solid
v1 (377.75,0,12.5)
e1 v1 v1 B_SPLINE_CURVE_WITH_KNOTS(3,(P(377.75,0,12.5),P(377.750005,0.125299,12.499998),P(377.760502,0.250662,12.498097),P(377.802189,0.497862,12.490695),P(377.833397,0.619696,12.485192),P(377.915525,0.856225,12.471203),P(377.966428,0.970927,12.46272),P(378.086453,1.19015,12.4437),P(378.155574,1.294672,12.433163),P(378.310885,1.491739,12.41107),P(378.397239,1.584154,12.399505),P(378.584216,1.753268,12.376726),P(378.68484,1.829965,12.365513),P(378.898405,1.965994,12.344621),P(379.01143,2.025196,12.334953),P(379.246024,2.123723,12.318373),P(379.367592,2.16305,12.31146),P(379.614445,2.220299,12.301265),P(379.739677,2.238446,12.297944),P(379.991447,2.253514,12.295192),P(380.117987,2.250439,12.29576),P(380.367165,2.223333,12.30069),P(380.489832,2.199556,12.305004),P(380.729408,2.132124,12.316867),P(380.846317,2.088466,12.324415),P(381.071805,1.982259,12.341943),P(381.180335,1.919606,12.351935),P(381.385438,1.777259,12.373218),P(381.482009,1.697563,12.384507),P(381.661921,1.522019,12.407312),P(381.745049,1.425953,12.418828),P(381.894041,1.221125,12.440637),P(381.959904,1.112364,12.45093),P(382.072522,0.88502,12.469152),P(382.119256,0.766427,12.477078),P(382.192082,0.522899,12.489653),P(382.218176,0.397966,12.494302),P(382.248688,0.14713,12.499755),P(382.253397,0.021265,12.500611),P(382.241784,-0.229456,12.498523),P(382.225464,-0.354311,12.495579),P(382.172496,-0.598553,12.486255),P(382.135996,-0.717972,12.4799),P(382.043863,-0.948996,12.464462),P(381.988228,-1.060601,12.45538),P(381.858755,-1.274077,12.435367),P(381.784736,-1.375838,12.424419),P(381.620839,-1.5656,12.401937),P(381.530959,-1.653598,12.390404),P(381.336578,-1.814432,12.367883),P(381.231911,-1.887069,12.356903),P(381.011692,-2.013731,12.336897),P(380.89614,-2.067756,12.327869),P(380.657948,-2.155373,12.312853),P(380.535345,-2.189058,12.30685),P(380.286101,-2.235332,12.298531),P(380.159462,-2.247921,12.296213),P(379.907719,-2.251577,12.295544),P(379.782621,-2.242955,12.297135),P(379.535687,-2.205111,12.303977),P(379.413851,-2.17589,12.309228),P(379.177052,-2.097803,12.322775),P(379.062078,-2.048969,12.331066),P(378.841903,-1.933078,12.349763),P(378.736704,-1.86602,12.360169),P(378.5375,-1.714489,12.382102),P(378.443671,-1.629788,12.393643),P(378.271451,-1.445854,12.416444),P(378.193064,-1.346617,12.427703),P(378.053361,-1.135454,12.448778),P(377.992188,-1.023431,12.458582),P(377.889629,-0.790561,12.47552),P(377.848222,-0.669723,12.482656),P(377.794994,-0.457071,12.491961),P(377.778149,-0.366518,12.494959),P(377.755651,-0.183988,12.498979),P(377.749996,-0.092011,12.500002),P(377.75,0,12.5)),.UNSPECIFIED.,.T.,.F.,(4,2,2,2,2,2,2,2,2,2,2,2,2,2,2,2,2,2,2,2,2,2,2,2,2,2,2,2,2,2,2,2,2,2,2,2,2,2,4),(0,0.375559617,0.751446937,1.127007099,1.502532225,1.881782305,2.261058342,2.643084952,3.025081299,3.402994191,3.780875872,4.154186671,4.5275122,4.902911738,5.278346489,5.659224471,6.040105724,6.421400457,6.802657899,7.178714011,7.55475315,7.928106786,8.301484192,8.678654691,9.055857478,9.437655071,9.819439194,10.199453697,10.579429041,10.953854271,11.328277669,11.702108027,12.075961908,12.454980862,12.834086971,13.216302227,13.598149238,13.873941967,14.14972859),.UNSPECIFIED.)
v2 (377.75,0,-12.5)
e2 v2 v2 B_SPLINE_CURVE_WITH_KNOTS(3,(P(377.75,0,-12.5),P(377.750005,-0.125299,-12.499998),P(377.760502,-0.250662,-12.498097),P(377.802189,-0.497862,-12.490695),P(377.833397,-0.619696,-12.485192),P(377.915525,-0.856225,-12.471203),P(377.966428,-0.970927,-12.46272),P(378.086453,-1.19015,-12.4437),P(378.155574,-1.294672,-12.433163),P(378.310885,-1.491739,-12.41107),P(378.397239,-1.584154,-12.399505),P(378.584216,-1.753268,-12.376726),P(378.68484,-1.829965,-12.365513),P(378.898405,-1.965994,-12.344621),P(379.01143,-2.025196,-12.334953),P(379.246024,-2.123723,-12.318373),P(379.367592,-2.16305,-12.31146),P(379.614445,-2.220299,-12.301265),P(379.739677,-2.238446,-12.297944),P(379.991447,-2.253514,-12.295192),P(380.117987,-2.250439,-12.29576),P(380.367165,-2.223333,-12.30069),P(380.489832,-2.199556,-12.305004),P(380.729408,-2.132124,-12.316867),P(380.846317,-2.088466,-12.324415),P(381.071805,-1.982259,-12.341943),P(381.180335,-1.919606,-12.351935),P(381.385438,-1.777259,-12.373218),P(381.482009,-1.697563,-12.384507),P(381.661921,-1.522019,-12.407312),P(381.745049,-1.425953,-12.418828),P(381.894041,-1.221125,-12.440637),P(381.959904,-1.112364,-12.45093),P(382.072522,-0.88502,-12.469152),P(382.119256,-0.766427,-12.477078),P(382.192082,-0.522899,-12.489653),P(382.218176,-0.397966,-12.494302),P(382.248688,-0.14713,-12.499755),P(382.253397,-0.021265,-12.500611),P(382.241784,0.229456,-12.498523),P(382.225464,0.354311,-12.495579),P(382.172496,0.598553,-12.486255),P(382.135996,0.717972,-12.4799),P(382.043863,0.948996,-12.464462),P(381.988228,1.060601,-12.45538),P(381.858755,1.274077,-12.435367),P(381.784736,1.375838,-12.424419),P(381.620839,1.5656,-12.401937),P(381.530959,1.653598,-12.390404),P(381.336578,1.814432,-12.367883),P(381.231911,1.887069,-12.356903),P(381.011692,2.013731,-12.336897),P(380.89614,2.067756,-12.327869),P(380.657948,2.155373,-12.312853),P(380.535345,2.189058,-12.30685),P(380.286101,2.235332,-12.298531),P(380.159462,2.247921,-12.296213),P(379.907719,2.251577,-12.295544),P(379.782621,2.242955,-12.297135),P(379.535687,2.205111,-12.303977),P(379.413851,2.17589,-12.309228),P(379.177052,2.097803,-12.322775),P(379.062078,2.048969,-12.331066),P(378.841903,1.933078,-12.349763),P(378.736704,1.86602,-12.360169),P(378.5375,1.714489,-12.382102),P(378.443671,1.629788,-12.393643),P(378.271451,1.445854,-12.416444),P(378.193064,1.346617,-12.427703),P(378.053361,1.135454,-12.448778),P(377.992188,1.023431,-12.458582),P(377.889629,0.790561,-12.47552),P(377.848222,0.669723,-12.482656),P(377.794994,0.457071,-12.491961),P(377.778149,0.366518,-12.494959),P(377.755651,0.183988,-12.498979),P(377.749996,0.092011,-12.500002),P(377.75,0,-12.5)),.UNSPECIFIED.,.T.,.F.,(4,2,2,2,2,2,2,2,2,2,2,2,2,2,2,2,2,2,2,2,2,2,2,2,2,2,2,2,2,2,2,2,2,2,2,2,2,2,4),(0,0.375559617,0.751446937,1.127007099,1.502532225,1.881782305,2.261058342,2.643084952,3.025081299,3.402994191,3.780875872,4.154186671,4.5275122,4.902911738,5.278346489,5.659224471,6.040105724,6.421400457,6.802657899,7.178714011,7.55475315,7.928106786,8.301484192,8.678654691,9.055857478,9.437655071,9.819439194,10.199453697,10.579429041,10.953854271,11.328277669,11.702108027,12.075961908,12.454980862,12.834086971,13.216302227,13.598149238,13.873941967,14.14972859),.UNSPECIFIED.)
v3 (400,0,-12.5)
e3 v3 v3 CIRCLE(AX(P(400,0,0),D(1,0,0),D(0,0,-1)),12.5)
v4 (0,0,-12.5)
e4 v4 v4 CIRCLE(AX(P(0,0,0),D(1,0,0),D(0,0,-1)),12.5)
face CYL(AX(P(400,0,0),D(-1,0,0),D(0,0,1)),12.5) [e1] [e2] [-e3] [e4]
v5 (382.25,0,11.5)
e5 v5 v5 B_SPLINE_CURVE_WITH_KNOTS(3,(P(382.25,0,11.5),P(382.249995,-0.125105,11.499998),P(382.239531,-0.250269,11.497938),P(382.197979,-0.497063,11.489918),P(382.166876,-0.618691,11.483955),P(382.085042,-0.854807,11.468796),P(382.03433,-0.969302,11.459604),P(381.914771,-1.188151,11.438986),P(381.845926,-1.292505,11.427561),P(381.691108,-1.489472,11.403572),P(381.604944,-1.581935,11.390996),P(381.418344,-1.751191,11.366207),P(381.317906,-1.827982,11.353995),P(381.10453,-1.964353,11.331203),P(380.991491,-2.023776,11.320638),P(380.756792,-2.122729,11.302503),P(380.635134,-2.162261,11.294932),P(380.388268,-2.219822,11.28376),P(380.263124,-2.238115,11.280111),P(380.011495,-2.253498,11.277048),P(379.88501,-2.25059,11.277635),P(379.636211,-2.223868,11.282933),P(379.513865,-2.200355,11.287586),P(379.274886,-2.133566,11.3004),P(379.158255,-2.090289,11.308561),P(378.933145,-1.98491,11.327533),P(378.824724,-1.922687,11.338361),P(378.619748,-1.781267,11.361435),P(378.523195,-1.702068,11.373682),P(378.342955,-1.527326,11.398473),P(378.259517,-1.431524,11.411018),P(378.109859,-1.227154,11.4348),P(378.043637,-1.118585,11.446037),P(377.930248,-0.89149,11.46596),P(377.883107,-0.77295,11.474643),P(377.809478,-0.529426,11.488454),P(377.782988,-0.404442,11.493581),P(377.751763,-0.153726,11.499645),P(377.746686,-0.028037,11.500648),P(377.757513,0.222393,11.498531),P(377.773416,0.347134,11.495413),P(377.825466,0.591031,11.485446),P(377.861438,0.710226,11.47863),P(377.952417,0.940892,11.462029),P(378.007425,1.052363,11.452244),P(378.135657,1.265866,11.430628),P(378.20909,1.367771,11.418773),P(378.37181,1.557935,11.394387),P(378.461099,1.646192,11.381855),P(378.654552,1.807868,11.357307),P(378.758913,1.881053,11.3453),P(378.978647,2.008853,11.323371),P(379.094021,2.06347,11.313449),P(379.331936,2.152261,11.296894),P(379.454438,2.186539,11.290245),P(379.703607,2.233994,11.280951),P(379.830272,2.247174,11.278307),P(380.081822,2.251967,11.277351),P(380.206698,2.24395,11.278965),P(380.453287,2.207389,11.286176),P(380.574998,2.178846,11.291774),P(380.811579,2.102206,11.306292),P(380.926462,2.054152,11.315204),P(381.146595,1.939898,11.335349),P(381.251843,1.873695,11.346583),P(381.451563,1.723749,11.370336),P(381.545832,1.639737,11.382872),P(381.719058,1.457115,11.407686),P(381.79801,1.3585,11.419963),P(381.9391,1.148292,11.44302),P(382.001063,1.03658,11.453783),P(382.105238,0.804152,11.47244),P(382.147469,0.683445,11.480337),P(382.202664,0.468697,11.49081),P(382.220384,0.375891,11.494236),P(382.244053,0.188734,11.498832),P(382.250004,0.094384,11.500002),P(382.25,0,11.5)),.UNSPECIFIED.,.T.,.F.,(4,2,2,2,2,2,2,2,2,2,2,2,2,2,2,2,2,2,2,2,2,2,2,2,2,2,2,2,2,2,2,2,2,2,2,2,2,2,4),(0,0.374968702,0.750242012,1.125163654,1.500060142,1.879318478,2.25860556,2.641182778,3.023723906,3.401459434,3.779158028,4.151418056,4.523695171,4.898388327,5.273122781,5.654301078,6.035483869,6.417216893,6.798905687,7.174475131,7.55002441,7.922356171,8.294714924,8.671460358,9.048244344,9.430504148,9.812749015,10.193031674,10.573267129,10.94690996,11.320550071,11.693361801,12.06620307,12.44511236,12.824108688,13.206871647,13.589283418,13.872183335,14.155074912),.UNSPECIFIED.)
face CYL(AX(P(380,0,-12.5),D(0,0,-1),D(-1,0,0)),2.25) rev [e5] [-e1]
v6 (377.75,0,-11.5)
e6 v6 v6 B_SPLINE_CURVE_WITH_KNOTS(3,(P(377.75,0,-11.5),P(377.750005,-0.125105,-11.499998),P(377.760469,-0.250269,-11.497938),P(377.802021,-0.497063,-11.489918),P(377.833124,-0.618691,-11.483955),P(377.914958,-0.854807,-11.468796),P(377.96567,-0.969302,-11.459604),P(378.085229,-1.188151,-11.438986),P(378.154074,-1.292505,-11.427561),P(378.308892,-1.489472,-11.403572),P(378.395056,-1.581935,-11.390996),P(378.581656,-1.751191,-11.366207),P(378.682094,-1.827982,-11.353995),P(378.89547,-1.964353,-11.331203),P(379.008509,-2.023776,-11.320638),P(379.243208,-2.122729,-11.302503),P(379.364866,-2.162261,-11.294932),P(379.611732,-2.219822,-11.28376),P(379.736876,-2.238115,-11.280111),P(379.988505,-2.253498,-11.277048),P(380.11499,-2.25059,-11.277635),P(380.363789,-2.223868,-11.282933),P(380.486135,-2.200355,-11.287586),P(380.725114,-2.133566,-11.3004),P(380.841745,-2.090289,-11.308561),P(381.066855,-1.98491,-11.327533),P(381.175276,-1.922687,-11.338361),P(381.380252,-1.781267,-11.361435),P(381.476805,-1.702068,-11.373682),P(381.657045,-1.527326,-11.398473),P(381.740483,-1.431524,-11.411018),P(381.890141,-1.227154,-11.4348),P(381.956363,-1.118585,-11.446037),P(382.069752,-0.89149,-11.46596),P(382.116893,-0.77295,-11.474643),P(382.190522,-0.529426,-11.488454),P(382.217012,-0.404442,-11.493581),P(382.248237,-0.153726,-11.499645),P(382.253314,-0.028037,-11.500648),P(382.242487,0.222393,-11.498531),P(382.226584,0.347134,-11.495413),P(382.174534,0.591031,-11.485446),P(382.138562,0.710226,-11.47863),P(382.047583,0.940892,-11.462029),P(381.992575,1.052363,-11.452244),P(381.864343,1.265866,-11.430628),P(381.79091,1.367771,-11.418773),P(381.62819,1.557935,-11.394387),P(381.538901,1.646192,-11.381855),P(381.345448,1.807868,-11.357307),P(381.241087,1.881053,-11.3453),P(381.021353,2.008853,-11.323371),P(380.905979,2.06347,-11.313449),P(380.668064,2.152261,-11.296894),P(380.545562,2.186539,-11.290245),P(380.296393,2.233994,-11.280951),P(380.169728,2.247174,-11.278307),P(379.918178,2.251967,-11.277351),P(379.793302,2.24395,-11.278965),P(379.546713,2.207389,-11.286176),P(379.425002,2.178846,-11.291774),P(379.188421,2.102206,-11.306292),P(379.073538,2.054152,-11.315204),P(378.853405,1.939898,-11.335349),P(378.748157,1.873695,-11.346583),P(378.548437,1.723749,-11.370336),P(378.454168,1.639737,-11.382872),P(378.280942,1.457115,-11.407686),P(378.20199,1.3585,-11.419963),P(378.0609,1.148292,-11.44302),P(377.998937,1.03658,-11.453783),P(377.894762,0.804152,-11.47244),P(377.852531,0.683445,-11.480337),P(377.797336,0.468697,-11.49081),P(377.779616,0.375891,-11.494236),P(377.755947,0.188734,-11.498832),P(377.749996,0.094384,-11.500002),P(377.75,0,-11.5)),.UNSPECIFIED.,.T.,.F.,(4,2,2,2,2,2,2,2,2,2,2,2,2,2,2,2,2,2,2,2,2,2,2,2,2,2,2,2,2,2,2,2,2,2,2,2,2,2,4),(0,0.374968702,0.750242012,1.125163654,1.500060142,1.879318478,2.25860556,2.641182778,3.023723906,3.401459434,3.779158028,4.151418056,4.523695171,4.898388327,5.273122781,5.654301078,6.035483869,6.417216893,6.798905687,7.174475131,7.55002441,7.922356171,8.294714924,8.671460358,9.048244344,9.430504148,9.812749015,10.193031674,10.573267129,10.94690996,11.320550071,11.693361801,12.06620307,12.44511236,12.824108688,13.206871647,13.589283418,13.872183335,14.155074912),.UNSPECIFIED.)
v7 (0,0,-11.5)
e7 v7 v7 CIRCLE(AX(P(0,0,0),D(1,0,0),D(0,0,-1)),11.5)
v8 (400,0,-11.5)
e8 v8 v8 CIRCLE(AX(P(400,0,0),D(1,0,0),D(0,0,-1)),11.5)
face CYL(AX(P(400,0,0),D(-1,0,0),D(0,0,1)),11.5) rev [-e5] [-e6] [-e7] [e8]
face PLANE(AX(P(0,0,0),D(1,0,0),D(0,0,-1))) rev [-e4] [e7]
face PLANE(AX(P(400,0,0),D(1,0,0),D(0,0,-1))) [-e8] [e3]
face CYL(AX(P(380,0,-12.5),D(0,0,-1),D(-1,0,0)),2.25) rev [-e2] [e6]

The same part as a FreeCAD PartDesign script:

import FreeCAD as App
import Part
import Sketcher

V = App.Vector

doc = App.newDocument("Part")
body = doc.addObject("PartDesign::Body", "Body")

# Sketch on YZ plane
sketch1 = doc.addObject("Sketcher::SketchObject", "Sketch")
body.addObject(sketch1)
sketch1.AttachmentSupport = (doc.YZ_Plane, [""])
sketch1.MapMode = "FlatFace"
sketch1.addGeometry([
    Part.Circle(V(0, 0, 0), V(0, 0, 1), 12),
    Part.Circle(V(0, 0, 0), V(0, 0, 1), 12),
], False)
sketch1.addConstraint([
    Sketcher.Constraint("Coincident", 0, 3, -1, 1),
    Sketcher.Constraint("Coincident", 1, 3, -1, 1),
    Sketcher.Constraint("Diameter", 0, 25.0),
    Sketcher.Constraint("Diameter", 1, 23.0),
])
pad1 = doc.addObject("PartDesign::Pad", "Pad")
body.addObject(pad1)
pad1.Profile = sketch1
pad1.Length = 400

# Sketch on XY plane
sketch2 = doc.addObject("Sketcher::SketchObject", "Sketch001")
body.addObject(sketch2)
sketch2.AttachmentSupport = (doc.XY_Plane, [""])
sketch2.MapMode = "FlatFace"
sketch2.AttachmentOffset = App.Placement(V(0, 0, -12.5), App.Rotation())
sketch2.addGeometry(Part.Circle(V(380, 0, 0), V(0, 0, 1), 2.2), False)
sketch2.addConstraint([
    Sketcher.Constraint("PointOnObject", 0, 3, -1),
    Sketcher.Constraint("Diameter", 0, 4.5),
    Sketcher.Constraint("DistanceX", -1, 1, 0, 3, 380.0),
])
doc.recompute()
hole = doc.addObject("PartDesign::Hole", "Hole")
body.addObject(hole)
hole.Profile = sketch2
hole.ThreadType = "None"
hole.Diameter = 4.5
hole.DepthType = "ThroughAll"
hole.Reversed = True

doc.recompute()
